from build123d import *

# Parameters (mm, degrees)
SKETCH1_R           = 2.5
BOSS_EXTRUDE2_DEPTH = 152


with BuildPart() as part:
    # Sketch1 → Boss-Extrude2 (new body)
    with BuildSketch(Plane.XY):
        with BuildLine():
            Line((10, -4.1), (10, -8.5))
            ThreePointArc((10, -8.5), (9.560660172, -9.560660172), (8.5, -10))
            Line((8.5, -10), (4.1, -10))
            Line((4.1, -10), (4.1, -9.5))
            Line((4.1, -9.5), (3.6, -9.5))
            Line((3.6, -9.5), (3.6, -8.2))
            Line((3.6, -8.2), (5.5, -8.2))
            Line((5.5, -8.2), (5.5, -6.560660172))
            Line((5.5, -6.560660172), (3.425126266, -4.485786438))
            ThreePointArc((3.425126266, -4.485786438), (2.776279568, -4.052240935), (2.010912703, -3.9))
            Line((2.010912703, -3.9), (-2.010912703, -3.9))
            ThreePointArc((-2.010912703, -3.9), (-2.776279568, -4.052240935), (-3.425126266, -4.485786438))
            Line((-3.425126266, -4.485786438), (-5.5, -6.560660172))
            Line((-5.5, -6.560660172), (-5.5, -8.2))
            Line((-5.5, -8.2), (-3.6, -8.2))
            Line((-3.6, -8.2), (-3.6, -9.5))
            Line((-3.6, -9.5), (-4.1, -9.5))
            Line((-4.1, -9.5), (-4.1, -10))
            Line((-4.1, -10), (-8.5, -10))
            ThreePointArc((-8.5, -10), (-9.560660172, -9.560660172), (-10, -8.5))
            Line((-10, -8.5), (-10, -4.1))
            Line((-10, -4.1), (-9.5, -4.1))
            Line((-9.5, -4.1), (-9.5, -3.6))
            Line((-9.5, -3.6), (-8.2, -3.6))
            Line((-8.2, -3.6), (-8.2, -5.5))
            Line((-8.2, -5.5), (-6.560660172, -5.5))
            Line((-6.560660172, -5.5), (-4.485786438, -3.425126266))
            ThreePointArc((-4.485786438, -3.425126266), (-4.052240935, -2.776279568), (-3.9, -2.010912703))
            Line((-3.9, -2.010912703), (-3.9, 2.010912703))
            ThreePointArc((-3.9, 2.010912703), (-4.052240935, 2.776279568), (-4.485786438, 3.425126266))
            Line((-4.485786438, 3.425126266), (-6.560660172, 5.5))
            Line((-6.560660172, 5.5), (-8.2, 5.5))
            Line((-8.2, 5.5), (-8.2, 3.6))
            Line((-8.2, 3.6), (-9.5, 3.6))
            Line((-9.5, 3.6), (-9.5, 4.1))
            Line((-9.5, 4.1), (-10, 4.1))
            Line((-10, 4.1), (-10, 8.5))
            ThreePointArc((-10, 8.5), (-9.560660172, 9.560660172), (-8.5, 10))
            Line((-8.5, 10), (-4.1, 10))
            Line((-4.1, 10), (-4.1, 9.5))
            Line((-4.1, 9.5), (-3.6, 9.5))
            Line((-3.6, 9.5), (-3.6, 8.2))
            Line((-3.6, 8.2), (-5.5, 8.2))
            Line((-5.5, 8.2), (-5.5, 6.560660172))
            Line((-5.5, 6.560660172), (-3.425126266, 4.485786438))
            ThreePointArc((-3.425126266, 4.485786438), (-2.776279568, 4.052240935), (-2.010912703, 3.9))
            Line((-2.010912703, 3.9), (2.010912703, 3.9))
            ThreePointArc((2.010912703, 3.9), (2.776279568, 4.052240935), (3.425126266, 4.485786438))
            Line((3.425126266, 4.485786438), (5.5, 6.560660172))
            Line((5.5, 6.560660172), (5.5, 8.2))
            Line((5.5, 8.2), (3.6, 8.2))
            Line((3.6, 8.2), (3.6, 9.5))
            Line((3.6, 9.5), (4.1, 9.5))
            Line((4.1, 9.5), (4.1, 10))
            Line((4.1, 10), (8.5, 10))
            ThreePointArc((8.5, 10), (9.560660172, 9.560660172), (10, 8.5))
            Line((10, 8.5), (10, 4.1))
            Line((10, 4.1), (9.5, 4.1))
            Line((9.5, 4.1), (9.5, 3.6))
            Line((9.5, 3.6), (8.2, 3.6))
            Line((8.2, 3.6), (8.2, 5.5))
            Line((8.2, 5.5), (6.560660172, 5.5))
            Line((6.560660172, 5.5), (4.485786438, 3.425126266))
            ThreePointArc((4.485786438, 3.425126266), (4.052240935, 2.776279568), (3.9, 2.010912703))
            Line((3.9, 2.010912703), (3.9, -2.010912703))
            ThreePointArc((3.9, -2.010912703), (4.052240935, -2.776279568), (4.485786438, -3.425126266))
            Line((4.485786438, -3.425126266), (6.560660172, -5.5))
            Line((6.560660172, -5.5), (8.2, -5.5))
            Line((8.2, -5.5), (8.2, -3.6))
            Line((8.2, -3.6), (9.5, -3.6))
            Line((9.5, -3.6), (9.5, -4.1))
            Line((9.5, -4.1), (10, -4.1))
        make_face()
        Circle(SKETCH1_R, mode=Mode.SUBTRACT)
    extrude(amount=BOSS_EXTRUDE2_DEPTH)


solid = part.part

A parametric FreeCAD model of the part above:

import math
import FreeCAD as App
import Part
import Sketcher

V = App.Vector
Q = App.Units.Quantity

doc = App.newDocument("Part")
body = doc.addObject("PartDesign::Body", "Body")

# Sketch on XY plane
sketch1 = doc.addObject("Sketcher::SketchObject", "Sketch")
body.addObject(sketch1)
sketch1.AttachmentSupport = (doc.XY_Plane, [""])
sketch1.MapMode = "FlatFace"
sketch1.addGeometry([
    Part.LineSegment(V(10, -8.5, 0), V(10, -4.1, 0)),  # 0
    Part.LineSegment(V(10, -4.1, 0), V(9.5, -4.1, 0)),  # 1
    Part.LineSegment(V(9.5, -4.1, 0), V(9.5, -3.6, 0)),  # 2
    Part.LineSegment(V(9.5, -3.6, 0), V(8.2, -3.6, 0)),  # 3
    Part.LineSegment(V(8.2, -3.6, 0), V(8.2, -5.5, 0)),  # 4
    Part.LineSegment(V(8.2, -5.5, 0), V(6.56, -5.5, 0)),  # 5
    Part.LineSegment(V(6.56, -5.5, 0), V(4.49, -3.43, 0)),  # 6
    Part.ArcOfCircle(Part.Circle(V(5.9, -2.01, 0), V(0, 0, 1), 2), math.radians(180), math.radians(225)),  # 7
    Part.LineSegment(V(3.9, -2.01, 0), V(3.9, 2.01, 0)),  # 8
    Part.ArcOfCircle(Part.Circle(V(5.9, 2.01, 0), V(0, 0, 1), 2), math.radians(135), math.radians(180)),  # 9
    Part.LineSegment(V(4.49, 3.43, 0), V(6.56, 5.5, 0)),  # 10
    Part.LineSegment(V(6.56, 5.5, 0), V(8.2, 5.5, 0)),  # 11
    Part.LineSegment(V(8.2, 5.5, 0), V(8.2, 3.6, 0)),  # 12
    Part.LineSegment(V(8.2, 3.6, 0), V(9.5, 3.6, 0)),  # 13
    Part.LineSegment(V(9.5, 3.6, 0), V(9.5, 4.1, 0)),  # 14
    Part.LineSegment(V(9.5, 4.1, 0), V(10, 4.1, 0)),  # 15
    Part.LineSegment(V(10, 4.1, 0), V(10, 8.5, 0)),  # 16
    Part.ArcOfCircle(Part.Circle(V(8.5, 8.5, 0), V(0, 0, 1), 1.5), math.radians(0), math.radians(90)),  # 17
    Part.LineSegment(V(8.5, 10, 0), V(4.1, 10, 0)),  # 18
    Part.LineSegment(V(4.1, 10, 0), V(4.1, 9.5, 0)),  # 19
    Part.LineSegment(V(4.1, 9.5, 0), V(3.6, 9.5, 0)),  # 20
    Part.LineSegment(V(3.6, 9.5, 0), V(3.6, 8.2, 0)),  # 21
    Part.LineSegment(V(3.6, 8.2, 0), V(5.5, 8.2, 0)),  # 22
    Part.LineSegment(V(5.5, 8.2, 0), V(5.5, 6.56, 0)),  # 23
    Part.LineSegment(V(5.5, 6.56, 0), V(3.43, 4.49, 0)),  # 24
    Part.ArcOfCircle(Part.Circle(V(2.01, 5.9, 0), V(0, 0, 1), 2), math.radians(-90), math.radians(-45)),  # 25
    Part.LineSegment(V(2.01, 3.9, 0), V(-2.01, 3.9, 0)),  # 26
    Part.ArcOfCircle(Part.Circle(V(-2.01, 5.9, 0), V(0, 0, 1), 2), math.radians(-135), math.radians(-90)),  # 27
    Part.LineSegment(V(-3.43, 4.49, 0), V(-5.5, 6.56, 0)),  # 28
    Part.LineSegment(V(-5.5, 6.56, 0), V(-5.5, 8.2, 0)),  # 29
    Part.LineSegment(V(-5.5, 8.2, 0), V(-3.6, 8.2, 0)),  # 30
    Part.LineSegment(V(-3.6, 8.2, 0), V(-3.6, 9.5, 0)),  # 31
    Part.LineSegment(V(-3.6, 9.5, 0), V(-4.1, 9.5, 0)),  # 32
    Part.LineSegment(V(-4.1, 9.5, 0), V(-4.1, 10, 0)),  # 33
    Part.LineSegment(V(-4.1, 10, 0), V(-8.5, 10, 0)),  # 34
    Part.ArcOfCircle(Part.Circle(V(-8.5, 8.5, 0), V(0, 0, 1), 1.5), math.radians(90), math.radians(180)),  # 35
    Part.LineSegment(V(-10, 8.5, 0), V(-10, 4.1, 0)),  # 36
    Part.LineSegment(V(-10, 4.1, 0), V(-9.5, 4.1, 0)),  # 37
    Part.LineSegment(V(-9.5, 4.1, 0), V(-9.5, 3.6, 0)),  # 38
    Part.LineSegment(V(-9.5, 3.6, 0), V(-8.2, 3.6, 0)),  # 39
    Part.LineSegment(V(-8.2, 3.6, 0), V(-8.2, 5.5, 0)),  # 40
    Part.LineSegment(V(-8.2, 5.5, 0), V(-6.56, 5.5, 0)),  # 41
    Part.LineSegment(V(-6.56, 5.5, 0), V(-4.49, 3.43, 0)),  # 42
    Part.ArcOfCircle(Part.Circle(V(-5.9, 2.01, 0), V(0, 0, 1), 2), math.radians(0), math.radians(45)),  # 43
    Part.LineSegment(V(-3.9, 2.01, 0), V(-3.9, -2.01, 0)),  # 44
    Part.ArcOfCircle(Part.Circle(V(-5.9, -2.01, 0), V(0, 0, 1), 2), math.radians(-45), math.radians(0)),  # 45
    Part.LineSegment(V(-4.49, -3.43, 0), V(-6.56, -5.5, 0)),  # 46
    Part.LineSegment(V(-6.56, -5.5, 0), V(-8.2, -5.5, 0)),  # 47
    Part.LineSegment(V(-8.2, -5.5, 0), V(-8.2, -3.6, 0)),  # 48
    Part.LineSegment(V(-8.2, -3.6, 0), V(-9.5, -3.6, 0)),  # 49
    Part.LineSegment(V(-9.5, -3.6, 0), V(-9.5, -4.1, 0)),  # 50
    Part.LineSegment(V(-9.5, -4.1, 0), V(-10, -4.1, 0)),  # 51
    Part.LineSegment(V(-10, -4.1, 0), V(-10, -8.5, 0)),  # 52
    Part.ArcOfCircle(Part.Circle(V(-8.5, -8.5, 0), V(0, 0, 1), 1.5), math.radians(180), math.radians(270)),  # 53
    Part.LineSegment(V(-8.5, -10, 0), V(-4.1, -10, 0)),  # 54
    Part.LineSegment(V(-4.1, -10, 0), V(-4.1, -9.5, 0)),  # 55
    Part.LineSegment(V(-4.1, -9.5, 0), V(-3.6, -9.5, 0)),  # 56
    Part.LineSegment(V(-3.6, -9.5, 0), V(-3.6, -8.2, 0)),  # 57
    Part.LineSegment(V(-3.6, -8.2, 0), V(-5.5, -8.2, 0)),  # 58
    Part.LineSegment(V(-5.5, -8.2, 0), V(-5.5, -6.56, 0)),  # 59
    Part.LineSegment(V(-5.5, -6.56, 0), V(-3.43, -4.49, 0)),  # 60
    Part.ArcOfCircle(Part.Circle(V(-2.01, -5.9, 0), V(0, 0, 1), 2), math.radians(90), math.radians(135)),  # 61
    Part.LineSegment(V(-2.01, -3.9, 0), V(2.01, -3.9, 0)),  # 62
    Part.ArcOfCircle(Part.Circle(V(2.01, -5.9, 0), V(0, 0, 1), 2), math.radians(45), math.radians(90)),  # 63
    Part.LineSegment(V(3.43, -4.49, 0), V(5.5, -6.56, 0)),  # 64
    Part.LineSegment(V(5.5, -6.56, 0), V(5.5, -8.2, 0)),  # 65
    Part.LineSegment(V(5.5, -8.2, 0), V(3.6, -8.2, 0)),  # 66
    Part.LineSegment(V(3.6, -8.2, 0), V(3.6, -9.5, 0)),  # 67
    Part.LineSegment(V(3.6, -9.5, 0), V(4.1, -9.5, 0)),  # 68
    Part.LineSegment(V(4.1, -9.5, 0), V(4.1, -10, 0)),  # 69
    Part.LineSegment(V(4.1, -10, 0), V(8.5, -10, 0)),  # 70
    Part.ArcOfCircle(Part.Circle(V(8.5, -8.5, 0), V(0, 0, 1), 1.5), math.radians(-90), math.radians(0)),  # 71
    Part.Circle(V(0, 0, 0), V(0, 0, 1), 2.5),  # 72
], False)
sketch1.addConstraint([
    Sketcher.Constraint("Coincident", 0, 2, 1, 1),
    Sketcher.Constraint("Coincident", 1, 2, 2, 1),
    Sketcher.Constraint("Coincident", 2, 2, 3, 1),
    Sketcher.Constraint("Coincident", 3, 2, 4, 1),
    Sketcher.Constraint("Coincident", 4, 2, 5, 1),
    Sketcher.Constraint("Coincident", 5, 2, 6, 1),
    Sketcher.Constraint("Tangent", 6, 2, 7, 2),
    Sketcher.Constraint("Tangent", 7, 1, 8, 1),
    Sketcher.Constraint("Tangent", 8, 2, 9, 2),
    Sketcher.Constraint("Tangent", 9, 1, 10, 1),
    Sketcher.Constraint("Coincident", 10, 2, 11, 1),
    Sketcher.Constraint("Coincident", 11, 2, 12, 1),
    Sketcher.Constraint("Coincident", 12, 2, 13, 1),
    Sketcher.Constraint("Coincident", 13, 2, 14, 1),
    Sketcher.Constraint("Coincident", 14, 2, 15, 1),
    Sketcher.Constraint("Coincident", 15, 2, 16, 1),
    Sketcher.Constraint("Tangent", 16, 2, 17, 1),
    Sketcher.Constraint("Tangent", 17, 2, 18, 1),
    Sketcher.Constraint("Coincident", 18, 2, 19, 1),
    Sketcher.Constraint("Coincident", 19, 2, 20, 1),
    Sketcher.Constraint("Coincident", 20, 2, 21, 1),
    Sketcher.Constraint("Coincident", 21, 2, 22, 1),
    Sketcher.Constraint("Coincident", 22, 2, 23, 1),
    Sketcher.Constraint("Coincident", 23, 2, 24, 1),
    Sketcher.Constraint("Tangent", 24, 2, 25, 2),
    Sketcher.Constraint("Tangent", 25, 1, 26, 1),
    Sketcher.Constraint("Tangent", 26, 2, 27, 2),
    Sketcher.Constraint("Tangent", 27, 1, 28, 1),
    Sketcher.Constraint("Coincident", 28, 2, 29, 1),
    Sketcher.Constraint("Coincident", 29, 2, 30, 1),
    Sketcher.Constraint("Coincident", 30, 2, 31, 1),
    Sketcher.Constraint("Coincident", 31, 2, 32, 1),
    Sketcher.Constraint("Coincident", 32, 2, 33, 1),
    Sketcher.Constraint("Coincident", 33, 2, 34, 1),
    Sketcher.Constraint("Tangent", 34, 2, 35, 1),
    Sketcher.Constraint("Tangent", 35, 2, 36, 1),
    Sketcher.Constraint("Coincident", 36, 2, 37, 1),
    Sketcher.Constraint("Coincident", 37, 2, 38, 1),
    Sketcher.Constraint("Coincident", 38, 2, 39, 1),
    Sketcher.Constraint("Coincident", 39, 2, 40, 1),
    Sketcher.Constraint("Coincident", 40, 2, 41, 1),
    Sketcher.Constraint("Coincident", 41, 2, 42, 1),
    Sketcher.Constraint("Tangent", 42, 2, 43, 2),
    Sketcher.Constraint("Tangent", 43, 1, 44, 1),
    Sketcher.Constraint("Tangent", 44, 2, 45, 2),
    Sketcher.Constraint("Tangent", 45, 1, 46, 1),
    Sketcher.Constraint("Coincident", 46, 2, 47, 1),
    Sketcher.Constraint("Coincident", 47, 2, 48, 1),
    Sketcher.Constraint("Coincident", 48, 2, 49, 1),
    Sketcher.Constraint("Coincident", 49, 2, 50, 1),
    Sketcher.Constraint("Coincident", 50, 2, 51, 1),
    Sketcher.Constraint("Coincident", 51, 2, 52, 1),
    Sketcher.Constraint("Tangent", 52, 2, 53, 1),
    Sketcher.Constraint("Tangent", 53, 2, 54, 1),
    Sketcher.Constraint("Coincident", 54, 2, 55, 1),
    Sketcher.Constraint("Coincident", 55, 2, 56, 1),
    Sketcher.Constraint("Coincident", 56, 2, 57, 1),
    Sketcher.Constraint("Coincident", 57, 2, 58, 1),
    Sketcher.Constraint("Coincident", 58, 2, 59, 1),
    Sketcher.Constraint("Coincident", 59, 2, 60, 1),
    Sketcher.Constraint("Tangent", 60, 2, 61, 2),
    Sketcher.Constraint("Tangent", 61, 1, 62, 1),
    Sketcher.Constraint("Tangent", 62, 2, 63, 2),
    Sketcher.Constraint("Tangent", 63, 1, 64, 1),
    Sketcher.Constraint("Coincident", 64, 2, 65, 1),
    Sketcher.Constraint("Coincident", 65, 2, 66, 1),
    Sketcher.Constraint("Coincident", 66, 2, 67, 1),
    Sketcher.Constraint("Coincident", 67, 2, 68, 1),
    Sketcher.Constraint("Coincident", 68, 2, 69, 1),
    Sketcher.Constraint("Coincident", 69, 2, 70, 1),
    Sketcher.Constraint("Tangent", 70, 2, 71, 1),
    Sketcher.Constraint("Tangent", 71, 2, 0, 1),
    Sketcher.Constraint("Vertical", 0),
    Sketcher.Constraint("Horizontal", 1),
    Sketcher.Constraint("Vertical", 2),
    Sketcher.Constraint("Horizontal", 3),
    Sketcher.Constraint("Vertical", 4),
    Sketcher.Constraint("Horizontal", 5),
    Sketcher.Constraint("Vertical", 8),
    Sketcher.Constraint("Horizontal", 11),
    Sketcher.Constraint("Vertical", 12),
    Sketcher.Constraint("Horizontal", 13),
    Sketcher.Constraint("Vertical", 14),
    Sketcher.Constraint("Horizontal", 15),
    Sketcher.Constraint("Vertical", 16),
    Sketcher.Constraint("Horizontal", 18),
    Sketcher.Constraint("Vertical", 19),
    Sketcher.Constraint("Horizontal", 20),
    Sketcher.Constraint("Vertical", 21),
    Sketcher.Constraint("Horizontal", 22),
    Sketcher.Constraint("Vertical", 23),
    Sketcher.Constraint("Horizontal", 26),
    Sketcher.Constraint("Vertical", 29),
    Sketcher.Constraint("Horizontal", 30),
    Sketcher.Constraint("Vertical", 31),
    Sketcher.Constraint("Horizontal", 32),
    Sketcher.Constraint("Vertical", 33),
    Sketcher.Constraint("Horizontal", 34),
    Sketcher.Constraint("Vertical", 36),
    Sketcher.Constraint("Horizontal", 37),
    Sketcher.Constraint("Vertical", 38),
    Sketcher.Constraint("Horizontal", 39),
    Sketcher.Constraint("Vertical", 40),
    Sketcher.Constraint("Horizontal", 41),
    Sketcher.Constraint("Vertical", 44),
    Sketcher.Constraint("Horizontal", 47),
    Sketcher.Constraint("Vertical", 48),
    Sketcher.Constraint("Horizontal", 49),
    Sketcher.Constraint("Vertical", 50),
    Sketcher.Constraint("Horizontal", 51),
    Sketcher.Constraint("Vertical", 52),
    Sketcher.Constraint("Horizontal", 54),
    Sketcher.Constraint("Vertical", 55),
    Sketcher.Constraint("Horizontal", 56),
    Sketcher.Constraint("Vertical", 57),
    Sketcher.Constraint("Horizontal", 58),
    Sketcher.Constraint("Vertical", 59),
    Sketcher.Constraint("Horizontal", 62),
    Sketcher.Constraint("Vertical", 65),
    Sketcher.Constraint("Horizontal", 66),
    Sketcher.Constraint("Vertical", 67),
    Sketcher.Constraint("Horizontal", 68),
    Sketcher.Constraint("Vertical", 69),
    Sketcher.Constraint("Horizontal", 70),
    Sketcher.Constraint("Coincident", 72, 3, -1, 1),
    Sketcher.Constraint("Equal", 7, 9),
    Sketcher.Constraint("Equal", 9, 25),
    Sketcher.Constraint("Equal", 25, 27),
    Sketcher.Constraint("Equal", 17, 35),
    Sketcher.Constraint("Equal", 27, 43),
    Sketcher.Constraint("Equal", 43, 45),
    Sketcher.Constraint("Equal", 35, 53),
    Sketcher.Constraint("Equal", 45, 61),
    Sketcher.Constraint("Equal", 61, 63),
    Sketcher.Constraint("Equal", 53, 71),
    Sketcher.Constraint("Symmetric", 7, 3, 43, 3, -1, 1),
    Sketcher.Constraint("Symmetric", 17, 3, 53, 3, -1, 1),
    Sketcher.Constraint("Symmetric", 25, 3, 61, 3, -1, 1),
    Sketcher.Constraint("Symmetric", 35, 3, 71, 3, -1, 1),
    Sketcher.Constraint("Symmetric", 1, 2, 37, 2, -1, 1),
    Sketcher.Constraint("Symmetric", 3, 2, 39, 2, -1, 1),
    Sketcher.Constraint("Symmetric", 5, 2, 41, 2, -1, 1),
    Sketcher.Constraint("Symmetric", 9, 1, 45, 1, -1, 1),
    Sketcher.Constraint("Symmetric", 11, 2, 47, 2, -1, 1),
    Sketcher.Constraint("Symmetric", 13, 2, 49, 2, -1, 1),
    Sketcher.Constraint("Symmetric", 19, 2, 55, 2, -1, 1),
    Sketcher.Constraint("Symmetric", 21, 2, 57, 2, -1, 1),
    Sketcher.Constraint("Symmetric", 23, 2, 59, 2, -1, 1),
    Sketcher.Constraint("Symmetric", 27, 1, 63, 1, -1, 1),
    Sketcher.Constraint("Symmetric", 29, 2, 65, 2, -1, 1),
    Sketcher.Constraint("Symmetric", 31, 2, 67, 2, -1, 1),
    Sketcher.Constraint("Symmetric", 17, 3, 35, 3, -2),
    Sketcher.Constraint("Symmetric", 24, 2, 27, 1, -2),
    Sketcher.Constraint("Symmetric", 22, 2, 29, 2, -2),
    Sketcher.Constraint("Symmetric", 20, 2, 31, 2, -2),
    Sketcher.Constraint("Symmetric", 14, 2, 37, 2, -2),
    Sketcher.Constraint("Symmetric", 12, 2, 39, 2, -2),
    Sketcher.Constraint("Symmetric", 10, 2, 41, 2, -2),
    Sketcher.Constraint("Perpendicular", 6, 10),
    Sketcher.Constraint("Parallel", 10, 24),
    Sketcher.Constraint("Perpendicular", 24, 28),
    Sketcher.Constraint("Horizontal", 1, 2, 50, 2),
    Sketcher.Constraint("Vertical", 33, 2, 54, 2),
    Sketcher.Constraint("Vertical", 19, 2, 68, 2),
    Sketcher.Constraint("Equal", 15, 20),
    Sketcher.Constraint("Equal", 70, 0),
    Sketcher.Constraint("Equal", 68, 2),
    Sketcher.Constraint("Equal", 66, 4),
    Sketcher.Constraint("Equal", 62, 8),
    Sketcher.Constraint("Equal", 14, 19),
    Sketcher.Constraint("Equal", 49, 21),
    Sketcher.Constraint("Equal", 47, 23),
    Sketcher.Constraint("Equal", 10, 24),
    Sketcher.Constraint("Diameter", 72, Q("5 mm")),
    Sketcher.Constraint("Radius", 7, Q("2 mm")),
    Sketcher.Constraint("Radius", 17, Q("1.5 mm")),
    Sketcher.Constraint("DistanceX", 1, 2, 1, 1, Q("0.5 mm")),
    Sketcher.Constraint("DistanceX", 3, 2, 3, 1, Q("1.3 mm")),
    Sketcher.Constraint("DistanceX", 18, 2, 18, 1, Q("4.4 mm")),
    Sketcher.Constraint("DistanceX", 22, 1, 22, 2, Q("1.9 mm")),
    Sketcher.Constraint("DistanceX", -1, 1, 0, 2, Q("10 mm")),
    Sketcher.Constraint("DistanceX", -1, 1, 7, 3, Q("5.9 mm")),
    Sketcher.Constraint("DistanceX", 5, 2, 5, 1, Q("1.63934 mm")),
])
pad1 = doc.addObject("PartDesign::Pad", "Pad")
body.addObject(pad1)
pad1.Profile = sketch1
pad1.Length = 152

doc.recompute()
